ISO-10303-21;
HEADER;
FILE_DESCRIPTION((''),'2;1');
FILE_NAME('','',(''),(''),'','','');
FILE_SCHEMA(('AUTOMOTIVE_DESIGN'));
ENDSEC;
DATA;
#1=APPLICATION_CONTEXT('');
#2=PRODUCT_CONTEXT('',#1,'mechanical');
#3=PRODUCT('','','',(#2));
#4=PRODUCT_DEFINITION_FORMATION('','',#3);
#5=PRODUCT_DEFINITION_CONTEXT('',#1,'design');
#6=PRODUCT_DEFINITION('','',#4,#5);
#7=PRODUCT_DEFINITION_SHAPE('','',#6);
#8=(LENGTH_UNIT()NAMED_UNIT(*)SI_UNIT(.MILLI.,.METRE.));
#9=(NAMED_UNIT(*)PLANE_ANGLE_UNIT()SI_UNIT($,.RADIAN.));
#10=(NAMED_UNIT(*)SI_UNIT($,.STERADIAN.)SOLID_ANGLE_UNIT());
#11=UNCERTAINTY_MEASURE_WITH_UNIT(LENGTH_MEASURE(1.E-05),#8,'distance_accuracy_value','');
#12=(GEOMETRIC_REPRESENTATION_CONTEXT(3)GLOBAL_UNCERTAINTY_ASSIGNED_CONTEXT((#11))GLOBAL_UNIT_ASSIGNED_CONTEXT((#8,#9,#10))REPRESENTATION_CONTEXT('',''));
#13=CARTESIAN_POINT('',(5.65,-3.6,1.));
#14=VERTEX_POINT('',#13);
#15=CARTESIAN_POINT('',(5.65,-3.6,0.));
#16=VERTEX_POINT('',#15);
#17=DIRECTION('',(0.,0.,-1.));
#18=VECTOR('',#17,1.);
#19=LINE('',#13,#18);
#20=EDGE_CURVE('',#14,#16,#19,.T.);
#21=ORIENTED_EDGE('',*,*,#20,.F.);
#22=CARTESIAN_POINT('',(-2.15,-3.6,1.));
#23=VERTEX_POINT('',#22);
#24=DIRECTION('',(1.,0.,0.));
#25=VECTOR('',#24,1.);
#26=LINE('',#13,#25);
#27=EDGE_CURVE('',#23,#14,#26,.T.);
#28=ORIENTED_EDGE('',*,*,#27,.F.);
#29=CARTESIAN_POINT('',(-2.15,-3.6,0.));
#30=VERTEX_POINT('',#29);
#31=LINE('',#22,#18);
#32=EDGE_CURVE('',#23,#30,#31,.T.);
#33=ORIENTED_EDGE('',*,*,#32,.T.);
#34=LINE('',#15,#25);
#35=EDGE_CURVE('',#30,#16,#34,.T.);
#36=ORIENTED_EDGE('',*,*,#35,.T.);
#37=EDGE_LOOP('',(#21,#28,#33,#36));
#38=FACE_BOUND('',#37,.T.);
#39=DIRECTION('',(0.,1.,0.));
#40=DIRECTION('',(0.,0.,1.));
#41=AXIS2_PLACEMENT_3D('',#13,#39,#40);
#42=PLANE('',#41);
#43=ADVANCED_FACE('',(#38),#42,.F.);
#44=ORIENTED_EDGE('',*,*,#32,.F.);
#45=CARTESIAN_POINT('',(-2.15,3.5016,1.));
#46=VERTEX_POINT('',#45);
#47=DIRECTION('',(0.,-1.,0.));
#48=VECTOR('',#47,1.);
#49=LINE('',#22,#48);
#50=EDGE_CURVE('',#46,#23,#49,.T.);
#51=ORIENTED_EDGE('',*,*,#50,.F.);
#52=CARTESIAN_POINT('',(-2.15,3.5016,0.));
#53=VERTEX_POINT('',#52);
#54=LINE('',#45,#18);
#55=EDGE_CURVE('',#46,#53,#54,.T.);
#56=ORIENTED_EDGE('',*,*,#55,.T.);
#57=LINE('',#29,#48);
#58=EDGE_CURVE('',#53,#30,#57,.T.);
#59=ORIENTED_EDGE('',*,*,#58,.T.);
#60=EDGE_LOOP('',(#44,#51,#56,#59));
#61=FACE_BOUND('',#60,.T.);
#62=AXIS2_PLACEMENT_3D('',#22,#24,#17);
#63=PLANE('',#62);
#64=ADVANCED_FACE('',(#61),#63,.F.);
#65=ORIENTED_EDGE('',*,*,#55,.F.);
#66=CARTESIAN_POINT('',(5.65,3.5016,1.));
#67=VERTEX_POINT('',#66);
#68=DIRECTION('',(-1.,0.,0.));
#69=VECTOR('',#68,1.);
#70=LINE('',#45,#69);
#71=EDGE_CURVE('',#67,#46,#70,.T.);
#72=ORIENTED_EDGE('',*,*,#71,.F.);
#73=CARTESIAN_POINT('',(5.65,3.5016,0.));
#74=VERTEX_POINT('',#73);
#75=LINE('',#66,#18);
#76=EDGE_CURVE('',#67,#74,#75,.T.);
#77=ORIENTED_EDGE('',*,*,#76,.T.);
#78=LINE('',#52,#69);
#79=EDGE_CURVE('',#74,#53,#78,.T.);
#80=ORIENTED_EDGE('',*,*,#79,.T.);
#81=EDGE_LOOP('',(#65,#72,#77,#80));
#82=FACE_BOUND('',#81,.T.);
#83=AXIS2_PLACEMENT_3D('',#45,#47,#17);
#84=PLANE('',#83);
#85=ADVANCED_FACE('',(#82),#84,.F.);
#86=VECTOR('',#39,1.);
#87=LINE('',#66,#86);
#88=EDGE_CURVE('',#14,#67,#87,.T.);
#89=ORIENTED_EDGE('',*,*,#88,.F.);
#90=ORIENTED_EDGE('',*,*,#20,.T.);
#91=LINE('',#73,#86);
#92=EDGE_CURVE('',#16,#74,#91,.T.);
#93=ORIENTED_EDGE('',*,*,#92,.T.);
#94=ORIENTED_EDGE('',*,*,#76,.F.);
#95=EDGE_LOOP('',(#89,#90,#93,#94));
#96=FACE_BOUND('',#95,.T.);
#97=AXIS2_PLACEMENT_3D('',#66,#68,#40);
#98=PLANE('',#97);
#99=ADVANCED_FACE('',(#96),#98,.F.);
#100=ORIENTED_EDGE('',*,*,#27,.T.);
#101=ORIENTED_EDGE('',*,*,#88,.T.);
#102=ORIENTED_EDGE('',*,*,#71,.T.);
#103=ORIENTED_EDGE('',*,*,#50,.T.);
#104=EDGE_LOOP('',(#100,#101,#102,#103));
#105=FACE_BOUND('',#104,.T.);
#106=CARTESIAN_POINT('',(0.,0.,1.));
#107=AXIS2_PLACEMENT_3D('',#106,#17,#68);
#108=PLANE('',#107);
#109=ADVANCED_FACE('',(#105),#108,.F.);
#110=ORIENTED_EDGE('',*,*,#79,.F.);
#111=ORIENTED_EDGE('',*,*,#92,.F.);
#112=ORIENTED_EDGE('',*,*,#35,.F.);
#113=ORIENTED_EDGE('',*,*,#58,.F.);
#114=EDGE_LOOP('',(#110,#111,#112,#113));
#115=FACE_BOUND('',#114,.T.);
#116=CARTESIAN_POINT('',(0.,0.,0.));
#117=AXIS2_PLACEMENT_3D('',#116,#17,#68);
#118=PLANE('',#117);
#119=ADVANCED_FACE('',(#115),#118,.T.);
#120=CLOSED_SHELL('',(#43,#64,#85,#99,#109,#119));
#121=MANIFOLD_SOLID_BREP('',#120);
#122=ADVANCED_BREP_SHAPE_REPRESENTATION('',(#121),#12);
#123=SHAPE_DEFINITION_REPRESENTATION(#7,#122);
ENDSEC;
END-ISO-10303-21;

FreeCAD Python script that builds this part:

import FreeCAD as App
import Part
import Sketcher


def add_polygon(sketch, points):
    """Adds a closed chain of lines whose ends are joined by coincident constraints."""
    first, n = sketch.GeometryCount, len(points)
    for a, b in zip(points, points[1:] + points[:1]):
        sketch.addGeometry(Part.LineSegment(App.Vector(*a, 0), App.Vector(*b, 0)), False)
    for i in range(n):
        sketch.addConstraint(Sketcher.Constraint("Coincident", first + i, 2, first + (i + 1) % n, 1))

doc = App.newDocument("Part")
params = doc.addObject("Spreadsheet::Sheet", "Params")
for row, (alias, value) in enumerate([
    ("sketch1_width", "7.8 mm"),
    ("pad1_length", "1 mm"),
], start=1):
    params.set(f"A{row}", alias)
    params.set(f"B{row}", "=" + value)
    params.setAlias(f"B{row}", alias)

body = doc.addObject("PartDesign::Body", "Body")

sketch1 = body.newObject("Sketcher::SketchObject", "Sketch")
sketch1.AttachmentSupport = (doc.getObject("XY_Plane"), [""])
sketch1.MapMode = "FlatFace"
add_polygon(sketch1, [(-2.15, 3.5016), (-2.15, -3.6), (5.65, -3.6), (5.65, 3.5016)])
sketch1.addConstraint([
    Sketcher.Constraint("Vertical", 0),
    Sketcher.Constraint("Horizontal", 1),
    Sketcher.Constraint("Vertical", 2),
    Sketcher.Constraint("Horizontal", 3),
    Sketcher.Constraint("DistanceX", 1, 1, 1, 2, 7.8),
    Sketcher.Constraint("DistanceY", 0, 2, -1, 1, 3.6),
    Sketcher.Constraint("DistanceX", 0, 2, -1, 1, 2.15),
    Sketcher.Constraint("DistanceY", 0, 2, 0, 1, 7.1016),
])
sketch1.setExpression("Constraints[8]", "Params.sketch1_width")
pad1 = body.newObject("PartDesign::Pad", "Pad")
pad1.Profile = sketch1
pad1.setExpression("Length", "Params.pad1_length")

doc.recompute()
